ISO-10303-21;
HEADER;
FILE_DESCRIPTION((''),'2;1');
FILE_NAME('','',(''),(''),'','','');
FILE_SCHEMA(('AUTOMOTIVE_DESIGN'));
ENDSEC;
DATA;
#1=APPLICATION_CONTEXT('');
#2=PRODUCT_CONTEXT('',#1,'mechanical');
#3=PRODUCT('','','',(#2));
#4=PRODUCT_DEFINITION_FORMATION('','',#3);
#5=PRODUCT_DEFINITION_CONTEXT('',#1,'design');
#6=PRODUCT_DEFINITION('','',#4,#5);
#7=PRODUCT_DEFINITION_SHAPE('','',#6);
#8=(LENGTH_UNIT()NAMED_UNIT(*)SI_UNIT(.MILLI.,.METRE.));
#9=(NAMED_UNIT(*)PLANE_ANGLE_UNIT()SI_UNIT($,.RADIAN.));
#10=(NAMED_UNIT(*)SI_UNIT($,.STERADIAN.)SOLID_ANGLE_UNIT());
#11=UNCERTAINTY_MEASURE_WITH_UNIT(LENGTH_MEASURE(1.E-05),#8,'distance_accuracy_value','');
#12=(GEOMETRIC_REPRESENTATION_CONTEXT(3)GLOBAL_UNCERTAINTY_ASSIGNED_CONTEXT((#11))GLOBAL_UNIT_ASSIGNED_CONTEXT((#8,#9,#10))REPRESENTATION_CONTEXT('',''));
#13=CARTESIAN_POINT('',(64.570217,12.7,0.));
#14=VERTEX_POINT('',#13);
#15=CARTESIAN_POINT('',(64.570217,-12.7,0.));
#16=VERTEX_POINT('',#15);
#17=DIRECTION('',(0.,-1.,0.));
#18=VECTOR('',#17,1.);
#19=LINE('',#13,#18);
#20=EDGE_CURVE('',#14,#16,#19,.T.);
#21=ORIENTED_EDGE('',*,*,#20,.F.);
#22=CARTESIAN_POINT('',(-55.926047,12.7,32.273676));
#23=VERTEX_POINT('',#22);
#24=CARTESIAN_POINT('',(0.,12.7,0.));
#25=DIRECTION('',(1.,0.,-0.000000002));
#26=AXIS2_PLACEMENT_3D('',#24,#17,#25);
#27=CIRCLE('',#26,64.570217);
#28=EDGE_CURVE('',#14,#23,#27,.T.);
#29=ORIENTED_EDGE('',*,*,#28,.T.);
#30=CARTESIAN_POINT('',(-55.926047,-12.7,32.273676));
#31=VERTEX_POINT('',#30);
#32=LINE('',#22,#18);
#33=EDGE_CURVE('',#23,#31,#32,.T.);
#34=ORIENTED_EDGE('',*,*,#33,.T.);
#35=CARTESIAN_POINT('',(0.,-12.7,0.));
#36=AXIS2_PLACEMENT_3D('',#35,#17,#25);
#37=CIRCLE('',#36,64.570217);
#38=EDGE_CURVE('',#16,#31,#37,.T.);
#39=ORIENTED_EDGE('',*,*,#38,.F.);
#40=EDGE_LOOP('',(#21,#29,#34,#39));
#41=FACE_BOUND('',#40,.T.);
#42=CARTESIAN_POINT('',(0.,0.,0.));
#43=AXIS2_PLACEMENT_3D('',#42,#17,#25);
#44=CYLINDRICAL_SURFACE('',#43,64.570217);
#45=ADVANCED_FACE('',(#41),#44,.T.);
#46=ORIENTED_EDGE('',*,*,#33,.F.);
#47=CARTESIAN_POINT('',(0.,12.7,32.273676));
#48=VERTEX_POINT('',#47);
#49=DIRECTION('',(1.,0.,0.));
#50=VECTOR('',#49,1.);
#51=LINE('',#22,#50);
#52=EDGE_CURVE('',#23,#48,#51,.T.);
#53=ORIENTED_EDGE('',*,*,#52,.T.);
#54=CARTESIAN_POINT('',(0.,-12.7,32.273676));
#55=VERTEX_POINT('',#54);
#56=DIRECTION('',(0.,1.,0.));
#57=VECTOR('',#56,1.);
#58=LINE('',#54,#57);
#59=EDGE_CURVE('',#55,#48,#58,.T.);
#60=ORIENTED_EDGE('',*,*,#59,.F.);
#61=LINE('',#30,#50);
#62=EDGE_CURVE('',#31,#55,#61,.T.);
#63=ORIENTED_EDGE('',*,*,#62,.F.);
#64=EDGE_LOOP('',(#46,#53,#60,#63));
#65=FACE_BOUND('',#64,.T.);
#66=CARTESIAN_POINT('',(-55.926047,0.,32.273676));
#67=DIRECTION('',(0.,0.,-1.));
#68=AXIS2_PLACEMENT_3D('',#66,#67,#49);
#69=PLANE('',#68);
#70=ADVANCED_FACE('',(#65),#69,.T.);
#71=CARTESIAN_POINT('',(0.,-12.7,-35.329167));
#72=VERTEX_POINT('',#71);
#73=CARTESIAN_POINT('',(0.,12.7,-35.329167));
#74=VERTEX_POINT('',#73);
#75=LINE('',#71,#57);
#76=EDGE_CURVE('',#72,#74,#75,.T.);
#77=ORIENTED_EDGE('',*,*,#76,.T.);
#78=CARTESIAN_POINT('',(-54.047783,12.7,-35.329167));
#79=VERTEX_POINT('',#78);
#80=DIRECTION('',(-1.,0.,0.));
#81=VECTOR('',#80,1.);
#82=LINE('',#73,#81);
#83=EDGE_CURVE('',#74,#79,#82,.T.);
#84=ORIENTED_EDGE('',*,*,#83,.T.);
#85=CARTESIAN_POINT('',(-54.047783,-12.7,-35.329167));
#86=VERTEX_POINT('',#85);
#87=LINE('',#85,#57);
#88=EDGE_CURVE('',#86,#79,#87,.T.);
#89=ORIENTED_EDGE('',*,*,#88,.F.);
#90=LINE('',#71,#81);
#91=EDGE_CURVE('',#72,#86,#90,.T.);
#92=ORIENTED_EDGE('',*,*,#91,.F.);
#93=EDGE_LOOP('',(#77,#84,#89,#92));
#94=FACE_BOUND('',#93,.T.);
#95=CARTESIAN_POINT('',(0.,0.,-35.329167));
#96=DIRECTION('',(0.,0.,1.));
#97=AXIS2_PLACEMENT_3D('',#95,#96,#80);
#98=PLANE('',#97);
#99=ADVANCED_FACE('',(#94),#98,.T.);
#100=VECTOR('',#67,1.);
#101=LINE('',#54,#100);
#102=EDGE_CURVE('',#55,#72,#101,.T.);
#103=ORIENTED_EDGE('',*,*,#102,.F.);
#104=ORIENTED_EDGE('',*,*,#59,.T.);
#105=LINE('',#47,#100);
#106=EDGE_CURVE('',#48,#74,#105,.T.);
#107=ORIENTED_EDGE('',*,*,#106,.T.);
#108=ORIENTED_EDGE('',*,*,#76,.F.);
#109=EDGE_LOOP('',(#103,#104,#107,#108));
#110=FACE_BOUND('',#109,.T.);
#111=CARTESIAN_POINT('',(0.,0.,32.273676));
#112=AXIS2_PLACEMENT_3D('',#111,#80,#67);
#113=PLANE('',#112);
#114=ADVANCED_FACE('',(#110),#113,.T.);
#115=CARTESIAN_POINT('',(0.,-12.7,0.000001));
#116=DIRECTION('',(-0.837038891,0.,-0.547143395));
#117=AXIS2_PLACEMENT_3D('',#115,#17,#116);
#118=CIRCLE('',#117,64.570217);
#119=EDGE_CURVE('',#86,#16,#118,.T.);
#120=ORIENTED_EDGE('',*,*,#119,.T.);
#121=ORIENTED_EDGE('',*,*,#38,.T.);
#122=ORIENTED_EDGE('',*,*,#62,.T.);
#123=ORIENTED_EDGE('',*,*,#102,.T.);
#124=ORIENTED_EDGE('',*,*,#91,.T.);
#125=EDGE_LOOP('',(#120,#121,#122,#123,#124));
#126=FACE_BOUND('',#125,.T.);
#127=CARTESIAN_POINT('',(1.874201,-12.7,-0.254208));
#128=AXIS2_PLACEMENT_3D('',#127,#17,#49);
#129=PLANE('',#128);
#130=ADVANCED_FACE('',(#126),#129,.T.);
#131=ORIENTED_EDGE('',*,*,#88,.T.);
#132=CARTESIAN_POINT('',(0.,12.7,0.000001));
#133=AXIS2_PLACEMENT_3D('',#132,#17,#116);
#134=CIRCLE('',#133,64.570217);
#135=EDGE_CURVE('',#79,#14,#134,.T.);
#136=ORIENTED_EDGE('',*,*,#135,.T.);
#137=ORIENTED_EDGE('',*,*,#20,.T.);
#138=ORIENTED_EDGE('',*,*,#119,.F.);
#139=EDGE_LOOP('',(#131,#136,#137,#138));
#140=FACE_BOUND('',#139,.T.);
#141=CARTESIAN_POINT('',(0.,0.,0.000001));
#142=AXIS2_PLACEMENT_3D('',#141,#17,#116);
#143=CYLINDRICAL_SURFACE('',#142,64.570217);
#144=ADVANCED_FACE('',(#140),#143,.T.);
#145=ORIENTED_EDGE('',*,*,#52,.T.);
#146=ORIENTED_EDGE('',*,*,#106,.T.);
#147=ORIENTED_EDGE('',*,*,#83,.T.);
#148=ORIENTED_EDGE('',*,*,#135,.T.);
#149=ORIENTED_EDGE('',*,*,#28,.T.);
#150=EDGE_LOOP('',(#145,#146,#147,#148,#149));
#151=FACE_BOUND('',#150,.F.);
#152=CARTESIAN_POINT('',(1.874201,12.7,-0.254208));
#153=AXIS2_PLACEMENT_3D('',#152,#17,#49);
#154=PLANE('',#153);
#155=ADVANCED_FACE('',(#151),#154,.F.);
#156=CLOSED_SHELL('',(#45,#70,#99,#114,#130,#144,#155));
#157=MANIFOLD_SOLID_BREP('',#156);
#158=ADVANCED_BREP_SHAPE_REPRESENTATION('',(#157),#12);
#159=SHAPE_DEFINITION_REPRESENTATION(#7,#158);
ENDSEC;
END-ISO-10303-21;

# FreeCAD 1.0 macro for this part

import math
import FreeCAD as App
import Part
import Sketcher
from FreeCAD import Vector
Q = App.Units.Quantity

doc = App.newDocument("Part")
body = doc.addObject("PartDesign::Body", "Body")

sketch1 = body.newObject("Sketcher::SketchObject", "Sketch")
sketch1.AttachmentSupport = (doc.getObject("XZ_Plane"), [""])
sketch1.MapMode = "FlatFace"
sketch1.addGeometry(Part.ArcOfCircle(Part.Circle(Vector(0, 0.000001, 0), Vector(0, 0, 1), 64.570217), math.radians(-146.828742), math.radians(-0.000001)), False)
sketch1.addGeometry(Part.ArcOfCircle(Part.Circle(Vector(0, 0, 0), Vector(0, 0, 1), 64.570217), math.radians(0), math.radians(150.011713)), False)
sketch1.addGeometry(Part.LineSegment(Vector(-55.926047, 32.273676, 0), Vector(0, 32.273676, 0)), False)
sketch1.addGeometry(Part.LineSegment(Vector(0, 32.273676, 0), Vector(0, -35.329167, 0)), False)
sketch1.addGeometry(Part.LineSegment(Vector(0, -35.329167, 0), Vector(-54.047783, -35.329167, 0)), False)
sketch1.addConstraint(Sketcher.Constraint("Tangent", 0, 2, 1, 1))
sketch1.addConstraint(Sketcher.Constraint("Coincident", 1, 2, 2, 1))
sketch1.addConstraint(Sketcher.Constraint("Coincident", 2, 2, 3, 1))
sketch1.addConstraint(Sketcher.Constraint("Coincident", 3, 2, 4, 1))
sketch1.addConstraint(Sketcher.Constraint("Coincident", 4, 2, 0, 1))
sketch1.addConstraint(Sketcher.Constraint("Horizontal", 2))
sketch1.addConstraint(Sketcher.Constraint("Vertical", 3))
sketch1.addConstraint(Sketcher.Constraint("Horizontal", 4))
sketch1.addConstraint(Sketcher.Constraint("Coincident", 0, 3, -1, 1))
sketch1.addConstraint(Sketcher.Constraint("Equal", 0, 1))
sketch1.addConstraint(Sketcher.Constraint("PointOnObject", 0, 2, -1))
sketch1.addConstraint(Sketcher.Constraint("PointOnObject", 2, 2, -2))
sketch1.addConstraint(Sketcher.Constraint("Radius", 0, 64.570217))
sketch1.addConstraint(Sketcher.Constraint("DistanceX", 2, 1, 2, 2, 55.926047))
sketch1.addConstraint(Sketcher.Constraint("DistanceX", 4, 2, 4, 1, 54.047783))
pad1 = body.newObject("PartDesign::Pad", "Pad")
pad1.Profile = sketch1
pad1.Length = Q("1 in")
pad1.Midplane = True

doc.recompute()
